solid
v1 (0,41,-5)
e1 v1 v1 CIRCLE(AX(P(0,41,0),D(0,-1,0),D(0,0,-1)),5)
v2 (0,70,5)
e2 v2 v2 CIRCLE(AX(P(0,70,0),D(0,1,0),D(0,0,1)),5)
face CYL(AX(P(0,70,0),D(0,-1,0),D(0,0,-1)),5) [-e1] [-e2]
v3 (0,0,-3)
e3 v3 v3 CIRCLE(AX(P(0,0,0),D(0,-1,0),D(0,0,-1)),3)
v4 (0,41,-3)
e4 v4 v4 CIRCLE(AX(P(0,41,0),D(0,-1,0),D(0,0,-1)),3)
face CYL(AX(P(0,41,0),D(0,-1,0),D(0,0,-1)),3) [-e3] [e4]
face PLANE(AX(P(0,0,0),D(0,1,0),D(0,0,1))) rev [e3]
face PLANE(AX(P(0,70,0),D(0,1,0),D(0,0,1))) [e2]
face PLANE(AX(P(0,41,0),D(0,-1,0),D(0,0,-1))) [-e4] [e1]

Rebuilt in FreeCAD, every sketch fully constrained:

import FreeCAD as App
import Part
import Sketcher
from FreeCAD import Vector

doc = App.newDocument("Part")
params = doc.addObject("Spreadsheet::Sheet", "Params")
for row, (alias, value) in enumerate([
    ("sketch1_diameter", "10 mm"),
    ("pad1_length", "70 mm"),
    ("sketch2_diameter", "10 mm"),
    ("sketch2_diameter2", "6 mm"),
    ("pocket1_length", "41 mm"),
], start=1):
    params.set(f"A{row}", alias)
    params.set(f"B{row}", "=" + value)
    params.setAlias(f"B{row}", alias)

body = doc.addObject("PartDesign::Body", "Body")

# Sketch on XZ plane
sketch1 = doc.addObject("Sketcher::SketchObject", "Sketch")
body.addObject(sketch1)
sketch1.AttachmentSupport = (doc.XZ_Plane, [""])
sketch1.MapMode = "FlatFace"
sketch1.addGeometry(Part.Circle(Vector(0, 0, 0), Vector(0, 0, 1), 5), False)
sketch1.addConstraint([
    Sketcher.Constraint("Coincident", 0, 3, -1, 1),
    Sketcher.Constraint("Diameter", 0, 10.0),
])
sketch1.setExpression("Constraints[1]", "Params.sketch1_diameter")
pad1 = doc.addObject("PartDesign::Pad", "Pad")
body.addObject(pad1)
pad1.Profile = sketch1
pad1.setExpression("Length", "Params.pad1_length")
pad1.Reversed = True

# Sketch on XZ plane
sketch2 = doc.addObject("Sketcher::SketchObject", "Sketch001")
body.addObject(sketch2)
sketch2.AttachmentSupport = (doc.XZ_Plane, [""])
sketch2.MapMode = "FlatFace"
sketch2.addGeometry([
    Part.Circle(Vector(0, 0, 0), Vector(0, 0, 1), 5),
    Part.Circle(Vector(0, 0, 0), Vector(0, 0, 1), 3),
], False)
sketch2.addConstraint([
    Sketcher.Constraint("Coincident", 0, 3, -1, 1),
    Sketcher.Constraint("Coincident", 1, 3, -1, 1),
    Sketcher.Constraint("Diameter", 0, 10.0),
    Sketcher.Constraint("Diameter", 1, 6.0),
])
sketch2.setExpression("Constraints[2]", "Params.sketch2_diameter")
sketch2.setExpression("Constraints[3]", "Params.sketch2_diameter2")
pocket1 = doc.addObject("PartDesign::Pocket", "Pocket")
body.addObject(pocket1)
pocket1.Profile = sketch2
pocket1.setExpression("Length", "Params.pocket1_length")

doc.recompute()
